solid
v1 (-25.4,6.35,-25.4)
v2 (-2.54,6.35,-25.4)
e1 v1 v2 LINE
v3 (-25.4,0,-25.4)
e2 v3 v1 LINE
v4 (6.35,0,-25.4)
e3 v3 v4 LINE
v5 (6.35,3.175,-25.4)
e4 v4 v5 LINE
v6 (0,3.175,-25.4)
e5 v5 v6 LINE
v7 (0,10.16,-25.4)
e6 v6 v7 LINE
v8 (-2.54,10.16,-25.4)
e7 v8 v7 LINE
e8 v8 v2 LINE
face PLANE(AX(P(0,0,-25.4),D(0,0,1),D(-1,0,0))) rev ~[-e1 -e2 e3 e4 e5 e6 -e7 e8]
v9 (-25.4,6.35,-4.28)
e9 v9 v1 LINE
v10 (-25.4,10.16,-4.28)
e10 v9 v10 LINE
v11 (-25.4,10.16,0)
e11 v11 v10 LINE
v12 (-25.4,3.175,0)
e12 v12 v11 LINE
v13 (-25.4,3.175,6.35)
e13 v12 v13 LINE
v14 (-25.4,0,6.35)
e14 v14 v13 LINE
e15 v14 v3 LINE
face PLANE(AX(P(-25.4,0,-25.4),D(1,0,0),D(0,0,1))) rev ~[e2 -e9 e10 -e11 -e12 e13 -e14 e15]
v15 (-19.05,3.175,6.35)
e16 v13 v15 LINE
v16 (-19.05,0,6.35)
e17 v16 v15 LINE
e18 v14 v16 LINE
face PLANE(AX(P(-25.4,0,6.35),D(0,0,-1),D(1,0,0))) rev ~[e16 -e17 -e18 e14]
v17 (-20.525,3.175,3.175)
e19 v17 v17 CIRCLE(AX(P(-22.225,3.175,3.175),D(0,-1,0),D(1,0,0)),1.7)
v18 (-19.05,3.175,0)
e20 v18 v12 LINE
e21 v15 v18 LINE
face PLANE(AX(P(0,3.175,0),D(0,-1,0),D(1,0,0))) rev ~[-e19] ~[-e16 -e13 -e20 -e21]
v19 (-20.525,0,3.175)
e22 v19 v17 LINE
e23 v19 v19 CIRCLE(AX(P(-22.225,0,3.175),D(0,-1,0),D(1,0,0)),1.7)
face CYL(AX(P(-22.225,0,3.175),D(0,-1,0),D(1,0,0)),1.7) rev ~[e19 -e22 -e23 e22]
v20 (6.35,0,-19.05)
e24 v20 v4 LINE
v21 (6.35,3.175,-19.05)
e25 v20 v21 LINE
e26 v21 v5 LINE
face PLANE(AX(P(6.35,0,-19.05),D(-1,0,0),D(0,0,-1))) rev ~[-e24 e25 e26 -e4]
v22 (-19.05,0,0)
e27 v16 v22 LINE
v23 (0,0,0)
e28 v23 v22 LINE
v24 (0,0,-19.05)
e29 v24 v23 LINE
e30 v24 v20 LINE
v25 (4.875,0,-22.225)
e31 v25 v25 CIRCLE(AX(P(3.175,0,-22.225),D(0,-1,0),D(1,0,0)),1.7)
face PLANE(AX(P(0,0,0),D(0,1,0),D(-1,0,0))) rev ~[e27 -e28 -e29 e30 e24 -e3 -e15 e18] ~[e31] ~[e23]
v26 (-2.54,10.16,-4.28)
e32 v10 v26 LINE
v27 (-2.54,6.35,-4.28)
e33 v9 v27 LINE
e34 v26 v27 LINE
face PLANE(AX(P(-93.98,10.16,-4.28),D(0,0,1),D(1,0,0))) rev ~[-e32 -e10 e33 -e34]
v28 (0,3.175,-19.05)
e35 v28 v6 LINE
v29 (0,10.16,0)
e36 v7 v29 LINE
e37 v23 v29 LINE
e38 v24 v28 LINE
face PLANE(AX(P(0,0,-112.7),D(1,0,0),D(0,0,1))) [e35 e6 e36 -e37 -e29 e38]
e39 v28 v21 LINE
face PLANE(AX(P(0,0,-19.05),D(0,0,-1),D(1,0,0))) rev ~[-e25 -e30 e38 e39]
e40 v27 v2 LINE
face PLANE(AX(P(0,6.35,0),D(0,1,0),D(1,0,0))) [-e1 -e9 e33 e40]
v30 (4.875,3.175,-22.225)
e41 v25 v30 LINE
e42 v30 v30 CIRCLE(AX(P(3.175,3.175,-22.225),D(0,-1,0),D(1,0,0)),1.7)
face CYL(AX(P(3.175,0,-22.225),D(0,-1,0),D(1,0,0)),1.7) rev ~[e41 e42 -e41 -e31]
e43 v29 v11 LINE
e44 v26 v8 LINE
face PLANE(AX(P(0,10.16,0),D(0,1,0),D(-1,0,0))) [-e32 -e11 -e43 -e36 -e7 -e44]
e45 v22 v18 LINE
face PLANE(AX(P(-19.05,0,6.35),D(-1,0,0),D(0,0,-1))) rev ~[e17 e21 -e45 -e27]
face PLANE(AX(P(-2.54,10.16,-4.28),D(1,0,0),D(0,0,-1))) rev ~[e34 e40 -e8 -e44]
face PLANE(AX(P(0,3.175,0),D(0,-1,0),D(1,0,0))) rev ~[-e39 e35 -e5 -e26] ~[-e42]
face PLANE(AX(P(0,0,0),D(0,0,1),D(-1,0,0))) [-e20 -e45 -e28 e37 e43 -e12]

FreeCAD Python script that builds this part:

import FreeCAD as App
import Part
import Sketcher
from FreeCAD import Vector
Q = App.Units.Quantity

doc = App.newDocument("Part")
body = doc.addObject("PartDesign::Body", "Body")

# Sketch on XZ plane
sketch1 = doc.addObject("Sketcher::SketchObject", "Sketch")
body.addObject(sketch1)
sketch1.AttachmentSupport = (doc.XZ_Plane, [""])
sketch1.MapMode = "FlatFace"
sketch1.addGeometry(Part.LineSegment(Vector(-97, 0, 0), Vector(0, 0, 0)), False)
sketch1.addGeometry(Part.LineSegment(Vector(0, 0, 0), Vector(0, -113, 0)), False)
sketch1.addGeometry(Part.LineSegment(Vector(0, -113, 0), Vector(-97, -113, 0)), False)
sketch1.addGeometry(Part.LineSegment(Vector(-97, -113, 0), Vector(-97, 0, 0)), False)
sketch1.addConstraint(Sketcher.Constraint("Coincident", 0, 2, 1, 1))
sketch1.addConstraint(Sketcher.Constraint("Coincident", 1, 2, 2, 1))
sketch1.addConstraint(Sketcher.Constraint("Coincident", 2, 2, 3, 1))
sketch1.addConstraint(Sketcher.Constraint("Coincident", 3, 2, 0, 1))
sketch1.addConstraint(Sketcher.Constraint("Horizontal", 0))
sketch1.addConstraint(Sketcher.Constraint("Vertical", 1))
sketch1.addConstraint(Sketcher.Constraint("Horizontal", 2))
sketch1.addConstraint(Sketcher.Constraint("Vertical", 3))
sketch1.addConstraint(Sketcher.Constraint("Coincident", 0, 2, -1, 1))
sketch1.addConstraint(Sketcher.Constraint("DistanceX", 0, 1, 0, 2, Q("3.8 in")))
sketch1.addConstraint(Sketcher.Constraint("DistanceY", 1, 2, 1, 1, Q("4.437 in")))
pad1 = doc.addObject("PartDesign::Pad", "Pad")
body.addObject(pad1)
pad1.Profile = sketch1
pad1.Length = Q("0.4 in")
pad1.Reversed = True

# Sketch on XZ plane
sketch2 = doc.addObject("Sketcher::SketchObject", "Sketch001")
body.addObject(sketch2)
sketch2.AttachmentSupport = (doc.XZ_Plane, [""])
sketch2.MapMode = "FlatFace"
sketch2.AttachmentOffset = App.Placement(Vector(0, 0, -0.4 * 25.4), App.Rotation())
sketch2.addGeometry(Part.LineSegment(Vector(-94, -108, 0), Vector(-94, -4, 0)), False)
sketch2.addGeometry(Part.LineSegment(Vector(-94, -4, 0), Vector(-3, -4, 0)), False)
sketch2.addGeometry(Part.LineSegment(Vector(-3, -4, 0), Vector(-3, -108, 0)), False)
sketch2.addGeometry(Part.LineSegment(Vector(-3, -108, 0), Vector(-94, -108, 0)), False)
sketch2.addConstraint(Sketcher.Constraint("Coincident", 0, 2, 1, 1))
sketch2.addConstraint(Sketcher.Constraint("Coincident", 1, 2, 2, 1))
sketch2.addConstraint(Sketcher.Constraint("Coincident", 2, 2, 3, 1))
sketch2.addConstraint(Sketcher.Constraint("Coincident", 3, 2, 0, 1))
sketch2.addConstraint(Sketcher.Constraint("Vertical", 0))
sketch2.addConstraint(Sketcher.Constraint("Horizontal", 1))
sketch2.addConstraint(Sketcher.Constraint("Vertical", 2))
sketch2.addConstraint(Sketcher.Constraint("Horizontal", 3))
sketch2.addConstraint(Sketcher.Constraint("DistanceX", 1, 1, 1, 2, Q("3.6 in")))
sketch2.addConstraint(Sketcher.Constraint("DistanceY", 0, 1, 0, 2, Q("4.1 in")))
sketch2.addConstraint(Sketcher.Constraint("DistanceX", 0, 2, -1, 1, Q("3.7 in")))
sketch2.addConstraint(Sketcher.Constraint("DistanceY", 0, 2, -1, 1, Q("0.1685 in")))
pocket1 = doc.addObject("PartDesign::Pocket", "Pocket")
body.addObject(pocket1)
pocket1.Profile = sketch2
pocket1.Length = Q("0.15 in")
pocket1.Reversed = True

# Sketch on XZ plane
sketch3 = doc.addObject("Sketcher::SketchObject", "Sketch002")
body.addObject(sketch3)
sketch3.AttachmentSupport = (doc.XZ_Plane, [""])
sketch3.MapMode = "FlatFace"
sketch3.addGeometry(Part.LineSegment(Vector(6.3, -87.3, 0), Vector(0, -87.3, 0)), False)
sketch3.addGeometry(Part.LineSegment(Vector(0, -87.3, 0), Vector(0, -93.7, 0)), False)
sketch3.addGeometry(Part.LineSegment(Vector(0, -93.7, 0), Vector(6.3, -93.7, 0)), False)
sketch3.addGeometry(Part.LineSegment(Vector(6.3, -93.7, 0), Vector(6.3, -87.3, 0)), False)
sketch3.addGeometry(Part.Circle(Vector(3.2, -90.5, 0), Vector(0, 0, 1), 1.7), False)
sketch3.addGeometry(Part.LineSegment(Vector(6.3, -19.1, 0), Vector(0, -19.1, 0)), False)
sketch3.addGeometry(Part.LineSegment(Vector(0, -19.1, 0), Vector(0, -25.4, 0)), False)
sketch3.addGeometry(Part.LineSegment(Vector(0, -25.4, 0), Vector(6.3, -25.4, 0)), False)
sketch3.addGeometry(Part.LineSegment(Vector(6.3, -25.4, 0), Vector(6.3, -19.1, 0)), False)
sketch3.addGeometry(Part.Circle(Vector(3.2, -22.2, 0), Vector(0, 0, 1), 1.7), False)
sketch3.addGeometry(Part.LineSegment(Vector(-96.5, -25.4, 0), Vector(-96.5, -19.1, 0)), False)
sketch3.addGeometry(Part.LineSegment(Vector(-96.5, -19.1, 0), Vector(-102.9, -19.1, 0)), False)
sketch3.addGeometry(Part.LineSegment(Vector(-102.9, -19.1, 0), Vector(-102.9, -25.4, 0)), False)
sketch3.addGeometry(Part.LineSegment(Vector(-102.9, -25.4, 0), Vector(-96.5, -25.4, 0)), False)
sketch3.addGeometry(Part.Circle(Vector(-99.7, -22.2, 0), Vector(0, 0, 1), 1.7), False)
sketch3.addGeometry(Part.LineSegment(Vector(-102.9, -93.7, 0), Vector(-96.5, -93.7, 0)), False)
sketch3.addGeometry(Part.LineSegment(Vector(-96.5, -93.7, 0), Vector(-96.5, -87.3, 0)), False)
sketch3.addGeometry(Part.LineSegment(Vector(-96.5, -87.3, 0), Vector(-102.9, -87.3, 0)), False)
sketch3.addGeometry(Part.LineSegment(Vector(-102.9, -87.3, 0), Vector(-102.9, -93.7, 0)), False)
sketch3.addGeometry(Part.Circle(Vector(-99.7, -90.5, 0), Vector(0, 0, 1), 1.7), False)
sketch3.addGeometry(Part.LineSegment(Vector(-25.4, 0, 0), Vector(-19.1, 0, 0)), False)
sketch3.addGeometry(Part.LineSegment(Vector(-19.1, 0, 0), Vector(-19.1, 6.3, 0)), False)
sketch3.addGeometry(Part.LineSegment(Vector(-19.1, 6.3, 0), Vector(-25.4, 6.3, 0)), False)
sketch3.addGeometry(Part.LineSegment(Vector(-25.4, 6.3, 0), Vector(-25.4, 0, 0)), False)
sketch3.addGeometry(Part.Circle(Vector(-22.2, 3.2, 0), Vector(0, 0, 1), 1.7), False)
sketch3.addGeometry(Part.LineSegment(Vector(-77.5, 6.3, 0), Vector(-77.5, 0, 0)), False)
sketch3.addGeometry(Part.LineSegment(Vector(-77.5, 0, 0), Vector(-71.1, 0, 0)), False)
sketch3.addGeometry(Part.LineSegment(Vector(-71.1, 0, 0), Vector(-71.1, 6.3, 0)), False)
sketch3.addGeometry(Part.LineSegment(Vector(-71.1, 6.3, 0), Vector(-77.5, 6.3, 0)), False)
sketch3.addGeometry(Part.Circle(Vector(-74.3, 3.2, 0), Vector(0, 0, 1), 1.7), False)
sketch3.addGeometry(Part.LineSegment(Vector(-19.1, -119, 0), Vector(-19.1, -112.7, 0)), False)
sketch3.addGeometry(Part.LineSegment(Vector(-19.1, -112.7, 0), Vector(-25.4, -112.7, 0)), False)
sketch3.addGeometry(Part.LineSegment(Vector(-25.4, -112.7, 0), Vector(-25.4, -119, 0)), False)
sketch3.addGeometry(Part.LineSegment(Vector(-25.4, -119, 0), Vector(-19.1, -119, 0)), False)
sketch3.addGeometry(Part.Circle(Vector(-22.2, -115.9, 0), Vector(0, 0, 1), 1.7), False)
sketch3.addGeometry(Part.LineSegment(Vector(-77.5, -112.7, 0), Vector(-77.5, -119, 0)), False)
sketch3.addGeometry(Part.LineSegment(Vector(-77.5, -119, 0), Vector(-71.1, -119, 0)), False)
sketch3.addGeometry(Part.LineSegment(Vector(-71.1, -119, 0), Vector(-71.1, -112.7, 0)), False)
sketch3.addGeometry(Part.LineSegment(Vector(-71.1, -112.7, 0), Vector(-77.5, -112.7, 0)), False)
sketch3.addGeometry(Part.Circle(Vector(-74.3, -115.9, 0), Vector(0, 0, 1), 1.7), False)
sketch3.addConstraint(Sketcher.Constraint("Coincident", 0, 2, 1, 1))
sketch3.addConstraint(Sketcher.Constraint("Coincident", 1, 2, 2, 1))
sketch3.addConstraint(Sketcher.Constraint("Coincident", 2, 2, 3, 1))
sketch3.addConstraint(Sketcher.Constraint("Coincident", 3, 2, 0, 1))
sketch3.addConstraint(Sketcher.Constraint("Coincident", 5, 2, 6, 1))
sketch3.addConstraint(Sketcher.Constraint("Coincident", 6, 2, 7, 1))
sketch3.addConstraint(Sketcher.Constraint("Coincident", 7, 2, 8, 1))
sketch3.addConstraint(Sketcher.Constraint("Coincident", 8, 2, 5, 1))
sketch3.addConstraint(Sketcher.Constraint("Coincident", 10, 2, 11, 1))
sketch3.addConstraint(Sketcher.Constraint("Coincident", 11, 2, 12, 1))
sketch3.addConstraint(Sketcher.Constraint("Coincident", 12, 2, 13, 1))
sketch3.addConstraint(Sketcher.Constraint("Coincident", 13, 2, 10, 1))
sketch3.addConstraint(Sketcher.Constraint("Coincident", 15, 2, 16, 1))
sketch3.addConstraint(Sketcher.Constraint("Coincident", 16, 2, 17, 1))
sketch3.addConstraint(Sketcher.Constraint("Coincident", 17, 2, 18, 1))
sketch3.addConstraint(Sketcher.Constraint("Coincident", 18, 2, 15, 1))
sketch3.addConstraint(Sketcher.Constraint("Coincident", 20, 2, 21, 1))
sketch3.addConstraint(Sketcher.Constraint("Coincident", 21, 2, 22, 1))
sketch3.addConstraint(Sketcher.Constraint("Coincident", 22, 2, 23, 1))
sketch3.addConstraint(Sketcher.Constraint("Coincident", 23, 2, 20, 1))
sketch3.addConstraint(Sketcher.Constraint("Coincident", 25, 2, 26, 1))
sketch3.addConstraint(Sketcher.Constraint("Coincident", 26, 2, 27, 1))
sketch3.addConstraint(Sketcher.Constraint("Coincident", 27, 2, 28, 1))
sketch3.addConstraint(Sketcher.Constraint("Coincident", 28, 2, 25, 1))
sketch3.addConstraint(Sketcher.Constraint("Coincident", 30, 2, 31, 1))
sketch3.addConstraint(Sketcher.Constraint("Coincident", 31, 2, 32, 1))
sketch3.addConstraint(Sketcher.Constraint("Coincident", 32, 2, 33, 1))
sketch3.addConstraint(Sketcher.Constraint("Coincident", 33, 2, 30, 1))
sketch3.addConstraint(Sketcher.Constraint("Coincident", 35, 2, 36, 1))
sketch3.addConstraint(Sketcher.Constraint("Coincident", 36, 2, 37, 1))
sketch3.addConstraint(Sketcher.Constraint("Coincident", 37, 2, 38, 1))
sketch3.addConstraint(Sketcher.Constraint("Coincident", 38, 2, 35, 1))
sketch3.addConstraint(Sketcher.Constraint("Horizontal", 0))
sketch3.addConstraint(Sketcher.Constraint("Vertical", 1))
sketch3.addConstraint(Sketcher.Constraint("Horizontal", 2))
sketch3.addConstraint(Sketcher.Constraint("Vertical", 3))
sketch3.addConstraint(Sketcher.Constraint("Horizontal", 5))
sketch3.addConstraint(Sketcher.Constraint("Vertical", 6))
sketch3.addConstraint(Sketcher.Constraint("Horizontal", 7))
sketch3.addConstraint(Sketcher.Constraint("Vertical", 8))
sketch3.addConstraint(Sketcher.Constraint("Vertical", 10))
sketch3.addConstraint(Sketcher.Constraint("Horizontal", 11))
sketch3.addConstraint(Sketcher.Constraint("Vertical", 12))
sketch3.addConstraint(Sketcher.Constraint("Horizontal", 13))
sketch3.addConstraint(Sketcher.Constraint("Horizontal", 15))
sketch3.addConstraint(Sketcher.Constraint("Vertical", 16))
sketch3.addConstraint(Sketcher.Constraint("Horizontal", 17))
sketch3.addConstraint(Sketcher.Constraint("Vertical", 18))
sketch3.addConstraint(Sketcher.Constraint("Horizontal", 20))
sketch3.addConstraint(Sketcher.Constraint("Vertical", 21))
sketch3.addConstraint(Sketcher.Constraint("Horizontal", 22))
sketch3.addConstraint(Sketcher.Constraint("Vertical", 23))
sketch3.addConstraint(Sketcher.Constraint("Vertical", 25))
sketch3.addConstraint(Sketcher.Constraint("Horizontal", 26))
sketch3.addConstraint(Sketcher.Constraint("Vertical", 27))
sketch3.addConstraint(Sketcher.Constraint("Horizontal", 28))
sketch3.addConstraint(Sketcher.Constraint("Vertical", 30))
sketch3.addConstraint(Sketcher.Constraint("Horizontal", 31))
sketch3.addConstraint(Sketcher.Constraint("Vertical", 32))
sketch3.addConstraint(Sketcher.Constraint("Horizontal", 33))
sketch3.addConstraint(Sketcher.Constraint("Vertical", 35))
sketch3.addConstraint(Sketcher.Constraint("Horizontal", 36))
sketch3.addConstraint(Sketcher.Constraint("Vertical", 37))
sketch3.addConstraint(Sketcher.Constraint("Horizontal", 38))
sketch3.addConstraint(Sketcher.Constraint("Equal", 4, 9))
sketch3.addConstraint(Sketcher.Constraint("Equal", 9, 14))
sketch3.addConstraint(Sketcher.Constraint("Equal", 14, 19))
sketch3.addConstraint(Sketcher.Constraint("Equal", 19, 24))
sketch3.addConstraint(Sketcher.Constraint("Equal", 24, 29))
sketch3.addConstraint(Sketcher.Constraint("Equal", 29, 34))
sketch3.addConstraint(Sketcher.Constraint("Equal", 34, 39))
sketch3.addConstraint(Sketcher.Constraint("PointOnObject", 0, 2, -2))
sketch3.addConstraint(Sketcher.Constraint("PointOnObject", 5, 2, -2))
sketch3.addConstraint(Sketcher.Constraint("PointOnObject", 20, 2, -1))
sketch3.addConstraint(Sketcher.Constraint("PointOnObject", 25, 2, -1))
sketch3.addConstraint(Sketcher.Constraint("Horizontal", 9, 3, 14, 3))
sketch3.addConstraint(Sketcher.Constraint("Horizontal", 4, 3, 19, 3))
sketch3.addConstraint(Sketcher.Constraint("Horizontal", 24, 3, 29, 3))
sketch3.addConstraint(Sketcher.Constraint("Horizontal", 34, 3, 39, 3))
sketch3.addConstraint(Sketcher.Constraint("Horizontal", 8, 2, 10, 2))
sketch3.addConstraint(Sketcher.Constraint("Horizontal", 7, 2, 12, 2))
sketch3.addConstraint(Sketcher.Constraint("Horizontal", 2, 2, 15, 2))
sketch3.addConstraint(Sketcher.Constraint("Horizontal", 3, 2, 16, 2))
sketch3.addConstraint(Sketcher.Constraint("Horizontal", 22, 2, 27, 2))
sketch3.addConstraint(Sketcher.Constraint("Horizontal", 33, 2, 35, 2))
sketch3.addConstraint(Sketcher.Constraint("Horizontal", 31, 2, 37, 2))
sketch3.addConstraint(Sketcher.Constraint("Vertical", 4, 3, 9, 3))
sketch3.addConstraint(Sketcher.Constraint("Vertical", 14, 3, 19, 3))
sketch3.addConstraint(Sketcher.Constraint("Vertical", 24, 3, 34, 3))
sketch3.addConstraint(Sketcher.Constraint("Vertical", 29, 3, 39, 3))
sketch3.addConstraint(Sketcher.Constraint("Vertical", 3, 2, 7, 2))
sketch3.addConstraint(Sketcher.Constraint("Vertical", 13, 2, 15, 2))
sketch3.addConstraint(Sketcher.Constraint("Vertical", 12, 2, 17, 2))
sketch3.addConstraint(Sketcher.Constraint("Vertical", 21, 2, 30, 2))
sketch3.addConstraint(Sketcher.Constraint("Vertical", 23, 2, 31, 2))
sketch3.addConstraint(Sketcher.Constraint("Vertical", 28, 2, 35, 2))
sketch3.addConstraint(Sketcher.Constraint("Vertical", 27, 2, 36, 2))
sketch3.addConstraint(Sketcher.Constraint("Equal", 7, 11))
sketch3.addConstraint(Sketcher.Constraint("Equal", 17, 20))
sketch3.addConstraint(Sketcher.Constraint("Equal", 22, 26))
sketch3.addConstraint(Sketcher.Constraint("Equal", 38, 1))
sketch3.addConstraint(Sketcher.Constraint("Equal", 3, 6))
sketch3.addConstraint(Sketcher.Constraint("Equal", 18, 21))
sketch3.addConstraint(Sketcher.Constraint("Equal", 27, 30))
sketch3.addConstraint(Sketcher.Constraint("DistanceX", 0, 2, 0, 1, Q("0.25 in")))
sketch3.addConstraint(Sketcher.Constraint("Diameter", 4, Q("3.4 mm")))
sketch3.addConstraint(Sketcher.Constraint("DistanceY", 5, 2, -1, 1, Q("0.75 in")))
sketch3.addConstraint(Sketcher.Constraint("DistanceX", 11, 2, -1, 1, Q("4.05 in")))
sketch3.addConstraint(Sketcher.Constraint("DistanceX", 20, 2, -1, 1, Q("0.75 in")))
sketch3.addConstraint(Sketcher.Constraint("DistanceX", 14, 3, 9, 3, Q("4.05 in")))
sketch3.addConstraint(Sketcher.Constraint("DistanceX", 29, 3, 24, 3, Q("2.05 in")))
sketch3.addConstraint(Sketcher.Constraint("DistanceX", 10, 2, 25, 2, Q("0.75 in")))
sketch3.addConstraint(Sketcher.Constraint("DistanceY", 30, 2, 1, 2, Q("0.75 in")))
sketch3.addConstraint(Sketcher.Constraint("DistanceY", 32, 2, -1, 1, Q("4.687 in")))
sketch3.addConstraint(Sketcher.Constraint("DistanceY", 4, 3, 9, 3, Q("2.687 in")))
sketch3.addConstraint(Sketcher.Constraint("DistanceX", 24, 3, 9, 3, Q("1 in")))
sketch3.addConstraint(Sketcher.Constraint("DistanceY", 9, 3, 24, 3, Q("1 in")))
sketch3.addConstraint(Sketcher.Constraint("DistanceY", 34, 3, 4, 3, Q("1 in")))
sketch3.addConstraint(Sketcher.Constraint("DistanceX", -1, 1, 4, 3, Q("0.125 in")))
sketch3.addConstraint(Sketcher.Constraint("DistanceY", 4, 3, -1, 1, Q("3.562 in")))
pad2 = doc.addObject("PartDesign::Pad", "Pad001")
body.addObject(pad2)
pad2.Profile = sketch3
pad2.Length = Q("0.125 in")
pad2.Reversed = True

# Sketch on XZ plane
sketch4 = doc.addObject("Sketcher::SketchObject", "Sketch003")
body.addObject(sketch4)
sketch4.AttachmentSupport = (doc.XZ_Plane, [""])
sketch4.MapMode = "FlatFace"
sketch4.addGeometry(Part.LineSegment(Vector(-25, -25, 0), Vector(-25, 6, 0)), False)
sketch4.addGeometry(Part.LineSegment(Vector(-25, 6, 0), Vector(-103, 6, 0)), False)
sketch4.addGeometry(Part.LineSegment(Vector(-103, 6, 0), Vector(-103, -119, 0)), False)
sketch4.addGeometry(Part.LineSegment(Vector(-103, -119, 0), Vector(6, -119, 0)), False)
sketch4.addGeometry(Part.LineSegment(Vector(6, -119, 0), Vector(6, -25, 0)), False)
sketch4.addGeometry(Part.LineSegment(Vector(6, -25, 0), Vector(-25, -25, 0)), False)
sketch4.addConstraint(Sketcher.Constraint("Coincident", 0, 2, 1, 1))
sketch4.addConstraint(Sketcher.Constraint("Coincident", 1, 2, 2, 1))
sketch4.addConstraint(Sketcher.Constraint("Coincident", 2, 2, 3, 1))
sketch4.addConstraint(Sketcher.Constraint("Coincident", 3, 2, 4, 1))
sketch4.addConstraint(Sketcher.Constraint("Coincident", 4, 2, 5, 1))
sketch4.addConstraint(Sketcher.Constraint("Coincident", 5, 2, 0, 1))
sketch4.addConstraint(Sketcher.Constraint("Vertical", 0))
sketch4.addConstraint(Sketcher.Constraint("Horizontal", 1))
sketch4.addConstraint(Sketcher.Constraint("Vertical", 2))
sketch4.addConstraint(Sketcher.Constraint("Horizontal", 3))
sketch4.addConstraint(Sketcher.Constraint("Vertical", 4))
sketch4.addConstraint(Sketcher.Constraint("Horizontal", 5))
sketch4.addConstraint(Sketcher.Constraint("Equal", 5, 0))
sketch4.addConstraint(Sketcher.Constraint("DistanceX", 0, 2, -1, 1, Q("1 in")))
sketch4.addConstraint(Sketcher.Constraint("DistanceY", 4, 2, -1, 1, Q("1 in")))
sketch4.addConstraint(Sketcher.Constraint("DistanceX", 3, 1, 3, 2, Q("4.3 in")))
sketch4.addConstraint(Sketcher.Constraint("DistanceX", 1, 2, 1, 1, Q("3.05 in")))
sketch4.addConstraint(Sketcher.Constraint("DistanceY", 2, 2, 2, 1, Q("4.937 in")))
pocket2 = doc.addObject("PartDesign::Pocket", "Pocket001")
body.addObject(pocket2)
pocket2.Profile = sketch4
pocket2.Type = "ThroughAll"

doc.recompute()
